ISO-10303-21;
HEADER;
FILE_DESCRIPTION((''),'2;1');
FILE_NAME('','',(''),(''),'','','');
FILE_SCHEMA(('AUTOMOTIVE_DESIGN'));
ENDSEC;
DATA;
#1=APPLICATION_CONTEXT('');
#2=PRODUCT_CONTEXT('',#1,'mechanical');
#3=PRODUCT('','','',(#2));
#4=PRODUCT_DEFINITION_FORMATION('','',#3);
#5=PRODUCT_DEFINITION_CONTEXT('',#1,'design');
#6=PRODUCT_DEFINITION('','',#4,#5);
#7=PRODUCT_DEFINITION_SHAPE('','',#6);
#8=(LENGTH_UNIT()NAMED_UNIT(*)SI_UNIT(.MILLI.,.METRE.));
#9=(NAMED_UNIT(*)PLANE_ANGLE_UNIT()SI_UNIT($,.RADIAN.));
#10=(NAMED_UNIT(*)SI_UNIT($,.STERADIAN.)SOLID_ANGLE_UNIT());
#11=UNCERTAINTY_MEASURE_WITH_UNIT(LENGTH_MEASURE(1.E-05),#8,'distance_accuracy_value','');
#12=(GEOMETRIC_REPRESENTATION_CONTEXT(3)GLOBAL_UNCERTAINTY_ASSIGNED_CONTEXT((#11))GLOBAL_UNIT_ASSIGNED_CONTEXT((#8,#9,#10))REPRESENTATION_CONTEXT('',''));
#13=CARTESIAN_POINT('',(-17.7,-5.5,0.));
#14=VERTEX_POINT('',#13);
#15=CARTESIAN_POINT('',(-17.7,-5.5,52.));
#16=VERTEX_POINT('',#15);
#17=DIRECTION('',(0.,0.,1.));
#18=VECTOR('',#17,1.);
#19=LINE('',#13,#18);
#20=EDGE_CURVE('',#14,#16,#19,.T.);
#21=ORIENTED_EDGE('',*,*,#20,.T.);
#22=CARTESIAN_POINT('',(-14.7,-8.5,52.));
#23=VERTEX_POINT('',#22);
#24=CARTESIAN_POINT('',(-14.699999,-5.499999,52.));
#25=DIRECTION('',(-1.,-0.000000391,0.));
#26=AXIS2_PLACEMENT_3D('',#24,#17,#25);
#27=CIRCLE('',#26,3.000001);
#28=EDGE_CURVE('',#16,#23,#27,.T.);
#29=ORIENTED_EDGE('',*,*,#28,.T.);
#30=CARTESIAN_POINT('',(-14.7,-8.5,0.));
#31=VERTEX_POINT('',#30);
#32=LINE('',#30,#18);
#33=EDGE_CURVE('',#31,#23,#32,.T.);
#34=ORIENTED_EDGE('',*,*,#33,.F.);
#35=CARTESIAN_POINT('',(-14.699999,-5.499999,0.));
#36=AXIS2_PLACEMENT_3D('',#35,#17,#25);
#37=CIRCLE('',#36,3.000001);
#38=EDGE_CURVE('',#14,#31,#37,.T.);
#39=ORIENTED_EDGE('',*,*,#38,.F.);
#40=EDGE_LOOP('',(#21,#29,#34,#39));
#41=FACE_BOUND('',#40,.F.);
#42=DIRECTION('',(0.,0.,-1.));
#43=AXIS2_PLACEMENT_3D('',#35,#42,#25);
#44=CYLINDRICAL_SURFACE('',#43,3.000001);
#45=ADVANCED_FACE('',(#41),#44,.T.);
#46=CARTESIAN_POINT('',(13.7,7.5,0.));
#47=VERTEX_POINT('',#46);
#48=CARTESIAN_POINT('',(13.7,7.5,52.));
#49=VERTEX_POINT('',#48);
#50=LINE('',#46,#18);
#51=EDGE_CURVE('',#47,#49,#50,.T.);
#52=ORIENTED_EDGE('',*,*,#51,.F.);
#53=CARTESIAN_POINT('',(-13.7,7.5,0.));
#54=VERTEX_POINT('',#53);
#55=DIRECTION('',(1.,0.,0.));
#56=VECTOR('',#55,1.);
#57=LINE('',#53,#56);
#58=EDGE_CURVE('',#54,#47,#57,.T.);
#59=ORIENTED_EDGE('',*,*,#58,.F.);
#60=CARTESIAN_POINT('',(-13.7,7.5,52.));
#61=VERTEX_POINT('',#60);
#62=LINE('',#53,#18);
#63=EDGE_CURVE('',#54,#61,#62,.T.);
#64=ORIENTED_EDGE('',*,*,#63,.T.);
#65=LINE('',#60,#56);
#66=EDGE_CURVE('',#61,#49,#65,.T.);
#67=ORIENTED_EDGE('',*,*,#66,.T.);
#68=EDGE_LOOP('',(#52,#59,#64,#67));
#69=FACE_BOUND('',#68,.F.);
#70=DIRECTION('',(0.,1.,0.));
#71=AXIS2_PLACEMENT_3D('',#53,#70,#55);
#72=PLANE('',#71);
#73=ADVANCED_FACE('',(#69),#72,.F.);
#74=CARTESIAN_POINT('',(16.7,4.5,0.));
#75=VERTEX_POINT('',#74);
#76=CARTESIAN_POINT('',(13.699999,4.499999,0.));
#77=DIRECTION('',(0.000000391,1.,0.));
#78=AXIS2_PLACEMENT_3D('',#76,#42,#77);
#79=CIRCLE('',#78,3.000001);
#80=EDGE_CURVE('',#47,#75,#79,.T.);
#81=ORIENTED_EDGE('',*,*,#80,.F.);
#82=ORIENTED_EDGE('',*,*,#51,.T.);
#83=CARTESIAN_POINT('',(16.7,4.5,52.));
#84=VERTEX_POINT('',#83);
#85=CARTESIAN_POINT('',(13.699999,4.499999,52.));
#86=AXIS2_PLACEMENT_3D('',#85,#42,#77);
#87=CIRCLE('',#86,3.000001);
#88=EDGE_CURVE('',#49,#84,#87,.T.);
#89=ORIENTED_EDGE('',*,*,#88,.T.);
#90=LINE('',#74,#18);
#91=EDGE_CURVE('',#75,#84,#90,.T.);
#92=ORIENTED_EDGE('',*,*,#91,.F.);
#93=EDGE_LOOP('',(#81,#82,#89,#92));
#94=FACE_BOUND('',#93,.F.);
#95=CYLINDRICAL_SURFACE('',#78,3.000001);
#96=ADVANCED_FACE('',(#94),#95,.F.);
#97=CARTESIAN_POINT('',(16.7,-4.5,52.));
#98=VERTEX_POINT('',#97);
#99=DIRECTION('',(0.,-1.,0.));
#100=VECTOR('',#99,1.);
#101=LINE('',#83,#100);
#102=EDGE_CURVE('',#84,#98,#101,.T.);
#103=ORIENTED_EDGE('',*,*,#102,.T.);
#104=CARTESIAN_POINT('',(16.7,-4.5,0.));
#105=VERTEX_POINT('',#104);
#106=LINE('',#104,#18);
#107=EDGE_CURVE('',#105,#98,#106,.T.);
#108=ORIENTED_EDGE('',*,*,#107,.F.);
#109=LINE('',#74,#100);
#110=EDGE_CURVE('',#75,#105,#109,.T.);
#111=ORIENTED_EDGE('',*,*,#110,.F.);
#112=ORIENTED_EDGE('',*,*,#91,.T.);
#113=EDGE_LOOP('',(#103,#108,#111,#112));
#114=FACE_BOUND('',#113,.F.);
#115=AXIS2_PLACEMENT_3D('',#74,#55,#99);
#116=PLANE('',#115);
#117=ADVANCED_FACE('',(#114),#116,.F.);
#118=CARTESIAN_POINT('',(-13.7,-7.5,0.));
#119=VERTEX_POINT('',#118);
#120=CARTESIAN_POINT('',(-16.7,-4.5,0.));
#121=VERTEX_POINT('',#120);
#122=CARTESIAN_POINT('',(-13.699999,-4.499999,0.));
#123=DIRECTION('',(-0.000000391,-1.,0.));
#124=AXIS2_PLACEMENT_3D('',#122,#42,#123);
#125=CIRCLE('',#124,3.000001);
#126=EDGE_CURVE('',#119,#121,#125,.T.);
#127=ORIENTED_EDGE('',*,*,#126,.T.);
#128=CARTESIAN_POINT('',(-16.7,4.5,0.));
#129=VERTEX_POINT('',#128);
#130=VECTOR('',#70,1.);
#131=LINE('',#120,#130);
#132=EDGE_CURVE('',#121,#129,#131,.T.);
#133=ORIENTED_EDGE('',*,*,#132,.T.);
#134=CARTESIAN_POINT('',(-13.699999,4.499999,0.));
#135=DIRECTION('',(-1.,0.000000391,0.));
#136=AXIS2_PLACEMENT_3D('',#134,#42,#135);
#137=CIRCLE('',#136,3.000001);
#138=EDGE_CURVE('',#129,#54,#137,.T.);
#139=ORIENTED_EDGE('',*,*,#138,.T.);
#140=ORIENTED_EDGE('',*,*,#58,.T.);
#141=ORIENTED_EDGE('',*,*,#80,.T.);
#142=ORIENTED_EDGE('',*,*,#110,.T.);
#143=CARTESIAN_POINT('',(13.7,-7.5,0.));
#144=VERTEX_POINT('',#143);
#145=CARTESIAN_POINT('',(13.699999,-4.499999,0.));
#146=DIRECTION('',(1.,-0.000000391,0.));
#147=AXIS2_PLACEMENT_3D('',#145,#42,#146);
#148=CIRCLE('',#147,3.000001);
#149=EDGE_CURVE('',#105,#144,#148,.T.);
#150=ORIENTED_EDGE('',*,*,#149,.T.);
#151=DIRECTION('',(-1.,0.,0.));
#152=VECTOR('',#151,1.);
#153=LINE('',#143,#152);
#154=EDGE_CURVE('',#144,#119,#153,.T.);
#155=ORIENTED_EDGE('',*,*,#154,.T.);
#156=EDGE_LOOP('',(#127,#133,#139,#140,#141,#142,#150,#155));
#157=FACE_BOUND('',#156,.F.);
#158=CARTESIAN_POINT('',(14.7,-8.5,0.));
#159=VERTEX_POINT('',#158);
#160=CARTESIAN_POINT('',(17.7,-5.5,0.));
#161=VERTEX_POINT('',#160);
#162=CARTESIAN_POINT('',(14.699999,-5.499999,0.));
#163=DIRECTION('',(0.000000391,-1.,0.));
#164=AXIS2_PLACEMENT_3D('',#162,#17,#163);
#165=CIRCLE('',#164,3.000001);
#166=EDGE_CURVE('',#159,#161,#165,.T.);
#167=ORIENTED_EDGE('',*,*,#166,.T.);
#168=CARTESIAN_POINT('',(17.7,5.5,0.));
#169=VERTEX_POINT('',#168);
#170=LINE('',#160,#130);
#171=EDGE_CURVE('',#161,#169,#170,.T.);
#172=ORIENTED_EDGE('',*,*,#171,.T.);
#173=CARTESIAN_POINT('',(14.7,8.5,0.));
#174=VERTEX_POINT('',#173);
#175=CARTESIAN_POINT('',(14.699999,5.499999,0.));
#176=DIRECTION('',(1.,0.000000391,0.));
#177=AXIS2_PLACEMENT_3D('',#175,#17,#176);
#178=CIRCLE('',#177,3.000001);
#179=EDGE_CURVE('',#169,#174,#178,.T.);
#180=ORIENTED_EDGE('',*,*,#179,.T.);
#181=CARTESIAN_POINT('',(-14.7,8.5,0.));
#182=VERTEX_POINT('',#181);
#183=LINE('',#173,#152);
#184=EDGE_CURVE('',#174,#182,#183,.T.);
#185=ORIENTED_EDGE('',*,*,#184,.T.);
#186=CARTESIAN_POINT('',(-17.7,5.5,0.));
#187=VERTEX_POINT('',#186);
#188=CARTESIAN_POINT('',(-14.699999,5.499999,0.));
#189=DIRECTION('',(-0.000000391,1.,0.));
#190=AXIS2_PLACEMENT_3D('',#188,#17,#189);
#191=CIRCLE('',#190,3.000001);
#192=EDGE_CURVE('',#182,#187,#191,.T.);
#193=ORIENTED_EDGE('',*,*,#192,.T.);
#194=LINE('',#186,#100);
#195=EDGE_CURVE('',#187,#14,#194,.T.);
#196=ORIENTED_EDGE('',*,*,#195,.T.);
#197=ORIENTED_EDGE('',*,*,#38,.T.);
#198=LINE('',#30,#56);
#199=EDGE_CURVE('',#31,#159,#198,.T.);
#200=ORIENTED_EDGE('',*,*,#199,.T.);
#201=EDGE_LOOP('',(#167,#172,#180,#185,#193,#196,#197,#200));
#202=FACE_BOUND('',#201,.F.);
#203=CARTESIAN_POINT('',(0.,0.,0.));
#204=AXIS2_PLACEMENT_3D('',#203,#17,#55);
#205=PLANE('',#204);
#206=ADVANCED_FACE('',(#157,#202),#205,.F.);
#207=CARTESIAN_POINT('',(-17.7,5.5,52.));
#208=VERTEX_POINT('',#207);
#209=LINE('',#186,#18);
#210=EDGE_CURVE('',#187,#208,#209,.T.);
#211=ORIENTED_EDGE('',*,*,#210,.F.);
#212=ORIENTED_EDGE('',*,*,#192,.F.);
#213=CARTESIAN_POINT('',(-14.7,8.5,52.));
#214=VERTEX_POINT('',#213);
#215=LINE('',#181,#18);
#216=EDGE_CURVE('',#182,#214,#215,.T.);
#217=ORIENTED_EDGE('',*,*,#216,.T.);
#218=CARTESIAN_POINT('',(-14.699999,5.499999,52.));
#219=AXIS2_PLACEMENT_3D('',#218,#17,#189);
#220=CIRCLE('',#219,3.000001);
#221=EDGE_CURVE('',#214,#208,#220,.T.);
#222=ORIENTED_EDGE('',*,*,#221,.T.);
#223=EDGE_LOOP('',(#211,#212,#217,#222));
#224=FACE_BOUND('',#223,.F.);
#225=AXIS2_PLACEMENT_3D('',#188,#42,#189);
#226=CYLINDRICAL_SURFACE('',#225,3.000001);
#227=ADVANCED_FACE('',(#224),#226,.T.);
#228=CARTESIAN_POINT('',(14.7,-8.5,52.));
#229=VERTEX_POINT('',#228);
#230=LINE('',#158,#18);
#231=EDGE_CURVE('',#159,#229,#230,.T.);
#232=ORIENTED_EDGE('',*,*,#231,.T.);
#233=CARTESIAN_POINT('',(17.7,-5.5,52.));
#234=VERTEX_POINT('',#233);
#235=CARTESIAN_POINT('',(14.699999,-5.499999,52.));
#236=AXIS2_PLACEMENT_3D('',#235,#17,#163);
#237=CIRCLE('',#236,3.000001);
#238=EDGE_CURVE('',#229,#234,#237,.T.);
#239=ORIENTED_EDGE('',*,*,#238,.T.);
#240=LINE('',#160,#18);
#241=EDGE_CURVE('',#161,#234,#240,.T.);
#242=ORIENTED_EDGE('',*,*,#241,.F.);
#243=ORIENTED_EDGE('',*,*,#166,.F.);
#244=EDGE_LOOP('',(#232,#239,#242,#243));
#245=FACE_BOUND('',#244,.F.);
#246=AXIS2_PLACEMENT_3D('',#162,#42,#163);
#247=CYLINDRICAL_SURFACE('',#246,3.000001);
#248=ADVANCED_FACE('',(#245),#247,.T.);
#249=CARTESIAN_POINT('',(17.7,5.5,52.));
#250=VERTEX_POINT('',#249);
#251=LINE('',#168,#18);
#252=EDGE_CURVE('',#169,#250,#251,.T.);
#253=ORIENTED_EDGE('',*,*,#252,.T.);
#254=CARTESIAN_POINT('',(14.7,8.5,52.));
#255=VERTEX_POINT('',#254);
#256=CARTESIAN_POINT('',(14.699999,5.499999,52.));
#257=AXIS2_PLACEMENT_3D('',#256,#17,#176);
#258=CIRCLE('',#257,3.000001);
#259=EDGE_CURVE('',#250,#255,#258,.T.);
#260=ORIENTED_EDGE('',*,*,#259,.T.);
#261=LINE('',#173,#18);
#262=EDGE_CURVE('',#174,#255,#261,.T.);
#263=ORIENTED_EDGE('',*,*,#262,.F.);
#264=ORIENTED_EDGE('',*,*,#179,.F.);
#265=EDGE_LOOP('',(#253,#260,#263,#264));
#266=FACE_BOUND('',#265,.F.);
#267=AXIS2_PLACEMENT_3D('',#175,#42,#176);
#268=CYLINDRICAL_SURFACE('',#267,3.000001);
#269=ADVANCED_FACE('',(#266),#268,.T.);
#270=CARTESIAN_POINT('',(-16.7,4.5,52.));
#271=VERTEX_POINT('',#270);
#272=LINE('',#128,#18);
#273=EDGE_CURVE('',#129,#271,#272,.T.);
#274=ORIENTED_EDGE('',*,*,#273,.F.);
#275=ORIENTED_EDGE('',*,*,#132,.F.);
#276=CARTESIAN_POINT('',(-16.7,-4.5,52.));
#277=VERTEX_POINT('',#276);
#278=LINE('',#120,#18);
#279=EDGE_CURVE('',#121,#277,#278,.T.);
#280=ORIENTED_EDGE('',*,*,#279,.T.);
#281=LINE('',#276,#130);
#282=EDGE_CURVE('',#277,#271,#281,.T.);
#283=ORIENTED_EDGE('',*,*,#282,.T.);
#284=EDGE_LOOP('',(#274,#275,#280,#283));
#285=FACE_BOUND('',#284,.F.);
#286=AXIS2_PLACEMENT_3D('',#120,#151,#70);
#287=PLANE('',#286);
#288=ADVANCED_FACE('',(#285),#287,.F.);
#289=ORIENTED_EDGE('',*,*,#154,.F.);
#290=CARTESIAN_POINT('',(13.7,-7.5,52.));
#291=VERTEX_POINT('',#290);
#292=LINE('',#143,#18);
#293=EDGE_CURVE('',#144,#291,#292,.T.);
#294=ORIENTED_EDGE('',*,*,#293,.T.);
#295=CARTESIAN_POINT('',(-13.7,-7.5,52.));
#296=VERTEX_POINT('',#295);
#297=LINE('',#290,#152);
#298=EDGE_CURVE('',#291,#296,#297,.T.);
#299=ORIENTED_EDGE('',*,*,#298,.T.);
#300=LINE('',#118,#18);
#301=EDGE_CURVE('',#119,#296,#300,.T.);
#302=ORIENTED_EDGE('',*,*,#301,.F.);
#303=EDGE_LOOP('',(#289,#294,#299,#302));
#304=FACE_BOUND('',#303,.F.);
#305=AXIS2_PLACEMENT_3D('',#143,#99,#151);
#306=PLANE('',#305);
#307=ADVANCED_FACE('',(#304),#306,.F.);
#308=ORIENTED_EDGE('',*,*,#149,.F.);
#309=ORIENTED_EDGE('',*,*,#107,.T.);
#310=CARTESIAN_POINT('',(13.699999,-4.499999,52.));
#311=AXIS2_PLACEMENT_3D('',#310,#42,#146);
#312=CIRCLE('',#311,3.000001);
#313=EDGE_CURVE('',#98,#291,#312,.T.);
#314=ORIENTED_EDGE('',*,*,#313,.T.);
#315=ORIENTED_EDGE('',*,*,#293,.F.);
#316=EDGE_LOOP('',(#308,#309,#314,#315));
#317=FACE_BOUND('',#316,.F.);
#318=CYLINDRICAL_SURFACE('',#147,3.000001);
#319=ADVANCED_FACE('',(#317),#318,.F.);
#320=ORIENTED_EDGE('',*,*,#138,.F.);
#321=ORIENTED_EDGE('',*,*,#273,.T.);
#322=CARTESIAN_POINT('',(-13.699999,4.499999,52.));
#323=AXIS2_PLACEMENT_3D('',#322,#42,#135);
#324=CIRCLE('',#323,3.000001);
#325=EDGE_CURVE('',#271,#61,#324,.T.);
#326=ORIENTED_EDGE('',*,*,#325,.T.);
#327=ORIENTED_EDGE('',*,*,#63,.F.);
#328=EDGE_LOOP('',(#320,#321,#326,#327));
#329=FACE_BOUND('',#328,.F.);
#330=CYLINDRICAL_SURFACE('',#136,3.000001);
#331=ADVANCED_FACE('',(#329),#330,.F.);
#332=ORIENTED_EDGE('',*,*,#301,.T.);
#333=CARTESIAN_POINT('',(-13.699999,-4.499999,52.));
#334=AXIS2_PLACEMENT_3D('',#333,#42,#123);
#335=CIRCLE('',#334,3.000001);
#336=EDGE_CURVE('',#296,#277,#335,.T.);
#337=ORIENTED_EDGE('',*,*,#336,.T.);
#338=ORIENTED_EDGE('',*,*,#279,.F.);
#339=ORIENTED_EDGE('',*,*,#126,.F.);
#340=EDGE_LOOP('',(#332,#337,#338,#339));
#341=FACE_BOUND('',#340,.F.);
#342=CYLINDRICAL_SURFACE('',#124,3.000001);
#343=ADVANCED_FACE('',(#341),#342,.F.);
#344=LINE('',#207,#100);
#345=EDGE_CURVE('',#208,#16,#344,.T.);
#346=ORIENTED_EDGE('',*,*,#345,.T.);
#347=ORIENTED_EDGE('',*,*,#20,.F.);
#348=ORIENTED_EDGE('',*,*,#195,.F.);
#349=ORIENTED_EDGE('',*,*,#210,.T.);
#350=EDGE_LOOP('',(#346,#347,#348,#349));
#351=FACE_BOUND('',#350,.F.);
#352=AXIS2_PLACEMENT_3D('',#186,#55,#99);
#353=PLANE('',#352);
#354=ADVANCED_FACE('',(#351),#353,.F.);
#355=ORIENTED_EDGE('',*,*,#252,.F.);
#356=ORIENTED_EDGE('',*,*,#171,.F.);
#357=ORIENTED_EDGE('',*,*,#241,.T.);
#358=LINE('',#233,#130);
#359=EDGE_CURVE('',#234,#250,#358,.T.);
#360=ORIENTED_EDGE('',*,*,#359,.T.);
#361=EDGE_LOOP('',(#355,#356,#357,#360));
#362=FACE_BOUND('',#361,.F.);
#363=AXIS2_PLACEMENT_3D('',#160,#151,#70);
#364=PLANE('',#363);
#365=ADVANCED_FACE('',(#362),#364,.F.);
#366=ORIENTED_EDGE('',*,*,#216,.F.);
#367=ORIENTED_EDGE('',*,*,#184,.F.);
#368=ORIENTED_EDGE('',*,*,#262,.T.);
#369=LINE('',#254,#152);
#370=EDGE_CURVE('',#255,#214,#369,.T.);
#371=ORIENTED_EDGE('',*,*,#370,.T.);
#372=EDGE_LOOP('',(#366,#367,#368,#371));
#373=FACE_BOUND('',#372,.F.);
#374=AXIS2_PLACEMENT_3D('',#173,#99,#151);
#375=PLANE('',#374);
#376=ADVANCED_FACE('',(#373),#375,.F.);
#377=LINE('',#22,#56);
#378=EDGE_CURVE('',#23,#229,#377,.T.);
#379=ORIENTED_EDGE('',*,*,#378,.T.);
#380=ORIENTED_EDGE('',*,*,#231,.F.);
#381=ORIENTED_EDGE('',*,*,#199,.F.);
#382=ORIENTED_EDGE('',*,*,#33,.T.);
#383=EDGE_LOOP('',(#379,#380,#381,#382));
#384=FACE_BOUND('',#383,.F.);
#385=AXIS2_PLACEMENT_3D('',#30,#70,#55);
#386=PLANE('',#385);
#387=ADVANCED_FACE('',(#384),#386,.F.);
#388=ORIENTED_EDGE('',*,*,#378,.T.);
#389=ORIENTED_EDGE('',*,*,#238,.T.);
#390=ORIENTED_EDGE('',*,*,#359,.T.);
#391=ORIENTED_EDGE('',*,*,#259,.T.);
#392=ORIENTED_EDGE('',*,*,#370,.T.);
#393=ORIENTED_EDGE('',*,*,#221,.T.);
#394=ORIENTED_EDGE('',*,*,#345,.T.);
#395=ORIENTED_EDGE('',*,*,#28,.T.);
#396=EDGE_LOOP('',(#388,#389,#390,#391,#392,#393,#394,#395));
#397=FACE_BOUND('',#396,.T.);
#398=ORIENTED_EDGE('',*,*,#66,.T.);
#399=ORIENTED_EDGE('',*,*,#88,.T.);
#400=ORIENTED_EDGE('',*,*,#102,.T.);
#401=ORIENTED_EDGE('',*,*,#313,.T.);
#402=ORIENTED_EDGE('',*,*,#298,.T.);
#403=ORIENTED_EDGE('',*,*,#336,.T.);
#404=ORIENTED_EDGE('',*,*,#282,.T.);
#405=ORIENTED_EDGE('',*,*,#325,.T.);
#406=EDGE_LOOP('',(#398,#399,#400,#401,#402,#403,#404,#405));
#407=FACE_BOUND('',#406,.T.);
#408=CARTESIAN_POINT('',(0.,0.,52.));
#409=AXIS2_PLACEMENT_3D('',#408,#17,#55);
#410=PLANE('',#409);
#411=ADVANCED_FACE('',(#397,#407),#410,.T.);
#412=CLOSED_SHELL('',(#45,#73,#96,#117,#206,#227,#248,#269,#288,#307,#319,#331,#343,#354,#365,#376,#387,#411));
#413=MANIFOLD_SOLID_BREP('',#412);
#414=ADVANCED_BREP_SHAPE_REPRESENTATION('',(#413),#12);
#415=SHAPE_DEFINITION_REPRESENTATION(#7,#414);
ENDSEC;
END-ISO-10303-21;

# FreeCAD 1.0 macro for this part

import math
import FreeCAD as App
import Part
import Sketcher

V = App.Vector
Q = App.Units.Quantity

doc = App.newDocument("Part")
params = doc.addObject("Spreadsheet::Sheet", "Params")
for row, (alias, value) in enumerate([
    ("sketch1_radius", "3.000001 mm"),
    ("sketch1_height", "11 mm"),
    ("sketch1_height2", "9 mm"),
    ("sketch1_width", "29.4 mm"),
    ("sketch1_width2", "27.4 mm"),
    ("pad1_length", "52 mm"),
    ("sketch2_width", "5 mm"),
    ("sketch2_height", "4 mm"),
], start=1):
    params.set(f"A{row}", alias)
    params.set(f"B{row}", "=" + value)
    params.setAlias(f"B{row}", alias)

body = doc.addObject("PartDesign::Body", "Body")

sketch1 = body.newObject("Sketcher::SketchObject", "Sketch")
sketch1.AttachmentSupport = (doc.getObject("XY_Plane"), [""])
sketch1.MapMode = "FlatFace"
sketch1.addGeometry(Part.LineSegment(V(-14.7, -8.5, 0), V(14.7, -8.5, 0)), False)
sketch1.addGeometry(Part.ArcOfCircle(Part.Circle(V(14.7, -5.5, 0), V(0, 0, 1), 3), math.radians(-90), math.radians(0)), False)
sketch1.addGeometry(Part.LineSegment(V(17.7, -5.5, 0), V(17.7, 5.5, 0)), False)
sketch1.addGeometry(Part.ArcOfCircle(Part.Circle(V(14.7, 5.5, 0), V(0, 0, 1), 3), math.radians(0), math.radians(90)), False)
sketch1.addGeometry(Part.LineSegment(V(14.7, 8.5, 0), V(-14.7, 8.5, 0)), False)
sketch1.addGeometry(Part.ArcOfCircle(Part.Circle(V(-14.7, 5.5, 0), V(0, 0, 1), 3), math.radians(90), math.radians(180)), False)
sketch1.addGeometry(Part.LineSegment(V(-17.7, 5.5, 0), V(-17.7, -5.5, 0)), False)
sketch1.addGeometry(Part.ArcOfCircle(Part.Circle(V(-14.7, -5.5, 0), V(0, 0, 1), 3), math.radians(-180), math.radians(-90)), False)
sketch1.addGeometry(Part.ArcOfCircle(Part.Circle(V(-13.7, 4.5, 0), V(0, 0, 1), 3), math.radians(90), math.radians(180)), False)
sketch1.addGeometry(Part.LineSegment(V(-13.7, 7.5, 0), V(13.7, 7.5, 0)), False)
sketch1.addGeometry(Part.ArcOfCircle(Part.Circle(V(13.7, 4.5, 0), V(0, 0, 1), 3), math.radians(0), math.radians(90)), False)
sketch1.addGeometry(Part.LineSegment(V(16.7, 4.5, 0), V(16.7, -4.5, 0)), False)
sketch1.addGeometry(Part.ArcOfCircle(Part.Circle(V(13.7, -4.5, 0), V(0, 0, 1), 3), math.radians(-90), math.radians(0)), False)
sketch1.addGeometry(Part.LineSegment(V(13.7, -7.5, 0), V(-13.7, -7.5, 0)), False)
sketch1.addGeometry(Part.ArcOfCircle(Part.Circle(V(-13.7, -4.5, 0), V(0, 0, 1), 3), math.radians(-180), math.radians(-90)), False)
sketch1.addGeometry(Part.LineSegment(V(-16.7, -4.5, 0), V(-16.7, 4.5, 0)), False)
sketch1.addConstraint(Sketcher.Constraint("Tangent", 0, 2, 1, 1))
sketch1.addConstraint(Sketcher.Constraint("Tangent", 1, 2, 2, 1))
sketch1.addConstraint(Sketcher.Constraint("Tangent", 2, 2, 3, 1))
sketch1.addConstraint(Sketcher.Constraint("Tangent", 3, 2, 4, 1))
sketch1.addConstraint(Sketcher.Constraint("Tangent", 4, 2, 5, 1))
sketch1.addConstraint(Sketcher.Constraint("Tangent", 5, 2, 6, 1))
sketch1.addConstraint(Sketcher.Constraint("Tangent", 6, 2, 7, 1))
sketch1.addConstraint(Sketcher.Constraint("Tangent", 7, 2, 0, 1))
sketch1.addConstraint(Sketcher.Constraint("Tangent", 8, 1, 9, 1))
sketch1.addConstraint(Sketcher.Constraint("Tangent", 9, 2, 10, 2))
sketch1.addConstraint(Sketcher.Constraint("Tangent", 10, 1, 11, 1))
sketch1.addConstraint(Sketcher.Constraint("Tangent", 11, 2, 12, 2))
sketch1.addConstraint(Sketcher.Constraint("Tangent", 12, 1, 13, 1))
sketch1.addConstraint(Sketcher.Constraint("Tangent", 13, 2, 14, 2))
sketch1.addConstraint(Sketcher.Constraint("Tangent", 14, 1, 15, 1))
sketch1.addConstraint(Sketcher.Constraint("Tangent", 15, 2, 8, 2))
sketch1.addConstraint(Sketcher.Constraint("Horizontal", 0))
sketch1.addConstraint(Sketcher.Constraint("Vertical", 2))
sketch1.addConstraint(Sketcher.Constraint("Horizontal", 4))
sketch1.addConstraint(Sketcher.Constraint("Vertical", 6))
sketch1.addConstraint(Sketcher.Constraint("Horizontal", 9))
sketch1.addConstraint(Sketcher.Constraint("Vertical", 11))
sketch1.addConstraint(Sketcher.Constraint("Horizontal", 13))
sketch1.addConstraint(Sketcher.Constraint("Vertical", 15))
sketch1.addConstraint(Sketcher.Constraint("Equal", 1, 3))
sketch1.addConstraint(Sketcher.Constraint("Equal", 3, 5))
sketch1.addConstraint(Sketcher.Constraint("Equal", 5, 7))
sketch1.addConstraint(Sketcher.Constraint("Equal", 7, 8))
sketch1.addConstraint(Sketcher.Constraint("Equal", 8, 10))
sketch1.addConstraint(Sketcher.Constraint("Equal", 10, 12))
sketch1.addConstraint(Sketcher.Constraint("Equal", 12, 14))
sketch1.addConstraint(Sketcher.Constraint("Symmetric", 1, 3, 5, 3, -1, 1))
sketch1.addConstraint(Sketcher.Constraint("Symmetric", 8, 3, 12, 3, -1, 1))
sketch1.addConstraint(Sketcher.Constraint("Radius", 1, Q("3.000001 mm")))
sketch1.addConstraint(Sketcher.Constraint("DistanceY", 2, 1, 2, 2, Q("11 mm")))
sketch1.addConstraint(Sketcher.Constraint("DistanceY", 11, 2, 11, 1, Q("9 mm")))
sketch1.addConstraint(Sketcher.Constraint("DistanceX", 0, 1, 0, 2, Q("29.4 mm")))
sketch1.addConstraint(Sketcher.Constraint("DistanceX", 9, 1, 9, 2, Q("27.4 mm")))
sketch1.setExpression("Constraints[33]", "Params.sketch1_radius")
sketch1.setExpression("Constraints[34]", "Params.sketch1_height")
sketch1.setExpression("Constraints[35]", "Params.sketch1_height2")
sketch1.setExpression("Constraints[36]", "Params.sketch1_width")
sketch1.setExpression("Constraints[37]", "Params.sketch1_width2")
pad1 = body.newObject("PartDesign::Pad", "Pad")
pad1.Profile = sketch1
pad1.setExpression("Length", "Params.pad1_length")

sketch2 = body.newObject("Sketcher::SketchObject", "Sketch001")
sketch2.AttachmentSupport = (doc.getObject("XY_Plane"), [""])
sketch2.MapMode = "FlatFace"
sketch2.addGeometry(Part.LineSegment(V(-0.3, -2, 0), V(-0.3, 2, 0)), False)
sketch2.addGeometry(Part.LineSegment(V(-0.3, 2, 0), V(4.7, 2, 0)), False)
sketch2.addGeometry(Part.LineSegment(V(4.7, 2, 0), V(4.7, -2, 0)), False)
sketch2.addGeometry(Part.LineSegment(V(4.7, -2, 0), V(-0.3, -2, 0)), False)
sketch2.addConstraint(Sketcher.Constraint("Coincident", 0, 2, 1, 1))
sketch2.addConstraint(Sketcher.Constraint("Coincident", 1, 2, 2, 1))
sketch2.addConstraint(Sketcher.Constraint("Coincident", 2, 2, 3, 1))
sketch2.addConstraint(Sketcher.Constraint("Coincident", 3, 2, 0, 1))
sketch2.addConstraint(Sketcher.Constraint("Vertical", 0))
sketch2.addConstraint(Sketcher.Constraint("Horizontal", 1))
sketch2.addConstraint(Sketcher.Constraint("Vertical", 2))
sketch2.addConstraint(Sketcher.Constraint("Horizontal", 3))
sketch2.addConstraint(Sketcher.Constraint("DistanceX", 1, 1, 1, 2, Q("5 mm")))
sketch2.addConstraint(Sketcher.Constraint("DistanceY", 0, 1, 0, 2, Q("4 mm")))
sketch2.addConstraint(Sketcher.Constraint("DistanceY", -1, 1, 0, 2, Q("2 mm")))
sketch2.addConstraint(Sketcher.Constraint("DistanceX", 0, 2, -1, 1, Q("0.3 mm")))
sketch2.setExpression("Constraints[8]", "Params.sketch2_width")
sketch2.setExpression("Constraints[9]", "Params.sketch2_height")
pocket1 = body.newObject("PartDesign::Pocket", "Pocket")
pocket1.Profile = sketch2
pocket1.Type = "ThroughAll"
pocket1.Reversed = True

doc.recompute()
